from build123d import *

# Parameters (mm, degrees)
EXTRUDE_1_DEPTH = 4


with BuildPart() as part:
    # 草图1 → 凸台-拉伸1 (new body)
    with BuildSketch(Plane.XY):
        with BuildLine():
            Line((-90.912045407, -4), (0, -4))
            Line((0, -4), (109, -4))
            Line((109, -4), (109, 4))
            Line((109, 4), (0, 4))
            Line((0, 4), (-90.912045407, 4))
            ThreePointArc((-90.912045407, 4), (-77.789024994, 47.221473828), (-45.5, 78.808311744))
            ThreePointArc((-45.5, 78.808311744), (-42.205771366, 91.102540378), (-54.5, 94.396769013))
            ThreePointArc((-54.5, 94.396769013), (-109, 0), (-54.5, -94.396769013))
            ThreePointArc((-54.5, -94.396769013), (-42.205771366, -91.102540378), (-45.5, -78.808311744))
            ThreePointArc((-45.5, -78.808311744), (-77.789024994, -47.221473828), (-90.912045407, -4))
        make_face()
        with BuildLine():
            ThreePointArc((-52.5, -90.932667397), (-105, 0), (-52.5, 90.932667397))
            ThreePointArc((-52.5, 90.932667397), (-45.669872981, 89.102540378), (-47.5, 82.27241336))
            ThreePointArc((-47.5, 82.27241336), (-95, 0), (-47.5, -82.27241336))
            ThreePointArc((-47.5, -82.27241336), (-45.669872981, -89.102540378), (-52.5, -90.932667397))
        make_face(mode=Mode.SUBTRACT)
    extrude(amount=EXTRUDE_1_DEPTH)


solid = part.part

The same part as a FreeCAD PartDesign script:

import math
import FreeCAD as App
import Part
import Sketcher

doc = App.newDocument("Part")
body = doc.addObject("PartDesign::Body", "Body")

sketch1 = body.newObject("Sketcher::SketchObject", "Sketch")
sketch1.AttachmentSupport = (doc.getObject("XY_Plane"), [""])
sketch1.MapMode = "FlatFace"
sketch1.addGeometry(Part.LineSegment(App.Vector(-91, -4, 0), App.Vector(109, -4, 0)), False)
sketch1.addGeometry(Part.LineSegment(App.Vector(109, -4, 0), App.Vector(109, 4, 0)), False)
sketch1.addGeometry(Part.LineSegment(App.Vector(109, 4, 0), App.Vector(-91, 4, 0)), False)
sketch1.addGeometry(Part.ArcOfCircle(Part.Circle(App.Vector(0, 0, 0), App.Vector(0, 0, 1), 91), math.radians(120), math.radians(177)), False)
sketch1.addGeometry(Part.ArcOfCircle(Part.Circle(App.Vector(-50, 87, 0), App.Vector(0, 0, 1), 9), math.radians(-60), math.radians(120)), False)
sketch1.addGeometry(Part.ArcOfCircle(Part.Circle(App.Vector(0, 0, 0), App.Vector(0, 0, 1), 109), math.radians(120), math.radians(240)), False)
sketch1.addGeometry(Part.ArcOfCircle(Part.Circle(App.Vector(-50, -87, 0), App.Vector(0, 0, 1), 9), math.radians(-120), math.radians(60)), False)
sketch1.addGeometry(Part.ArcOfCircle(Part.Circle(App.Vector(0, 0, 0), App.Vector(0, 0, 1), 91), math.radians(-177), math.radians(-120)), False)
sketch1.addGeometry(Part.ArcOfCircle(Part.Circle(App.Vector(-50, -87, 0), App.Vector(0, 0, 1), 5), math.radians(-120), math.radians(60)), False)
sketch1.addGeometry(Part.ArcOfCircle(Part.Circle(App.Vector(0, 0, 0), App.Vector(0, 0, 1), 105), math.radians(120), math.radians(240)), False)
sketch1.addGeometry(Part.ArcOfCircle(Part.Circle(App.Vector(-50, 87, 0), App.Vector(0, 0, 1), 5), math.radians(-60), math.radians(120)), False)
sketch1.addGeometry(Part.ArcOfCircle(Part.Circle(App.Vector(0, 0, 0), App.Vector(0, 0, 1), 95), math.radians(120), math.radians(240)), False)
sketch1.addConstraint(Sketcher.Constraint("Coincident", 0, 2, 1, 1))
sketch1.addConstraint(Sketcher.Constraint("Coincident", 1, 2, 2, 1))
sketch1.addConstraint(Sketcher.Constraint("Coincident", 2, 2, 3, 2))
sketch1.addConstraint(Sketcher.Constraint("Tangent", 3, 1, 4, 1))
sketch1.addConstraint(Sketcher.Constraint("Tangent", 4, 2, 5, 1))
sketch1.addConstraint(Sketcher.Constraint("Tangent", 5, 2, 6, 1))
sketch1.addConstraint(Sketcher.Constraint("Tangent", 6, 2, 7, 2))
sketch1.addConstraint(Sketcher.Constraint("Coincident", 7, 1, 0, 1))
sketch1.addConstraint(Sketcher.Constraint("Tangent", 8, 1, 9, 2))
sketch1.addConstraint(Sketcher.Constraint("Tangent", 9, 1, 10, 2))
sketch1.addConstraint(Sketcher.Constraint("Tangent", 10, 1, 11, 1))
sketch1.addConstraint(Sketcher.Constraint("Tangent", 11, 2, 8, 2))
sketch1.addConstraint(Sketcher.Constraint("Horizontal", 0))
sketch1.addConstraint(Sketcher.Constraint("Vertical", 1))
sketch1.addConstraint(Sketcher.Constraint("Horizontal", 2))
sketch1.addConstraint(Sketcher.Constraint("Coincident", 3, 3, -1, 1))
sketch1.addConstraint(Sketcher.Constraint("Coincident", 5, 3, -1, 1))
sketch1.addConstraint(Sketcher.Constraint("Coincident", 7, 3, -1, 1))
sketch1.addConstraint(Sketcher.Constraint("Coincident", 9, 3, -1, 1))
sketch1.addConstraint(Sketcher.Constraint("Coincident", 11, 3, -1, 1))
sketch1.addConstraint(Sketcher.Constraint("Coincident", 8, 3, 6, 3))
sketch1.addConstraint(Sketcher.Constraint("Coincident", 10, 3, 4, 3))
sketch1.addConstraint(Sketcher.Constraint("Vertical", 4, 3, 6, 3))
sketch1.addConstraint(Sketcher.Constraint("Vertical", 2, 2, 7, 1))
sketch1.addConstraint(Sketcher.Constraint("Radius", 3, 91.0))
sketch1.addConstraint(Sketcher.Constraint("Radius", 4, 9.0))
sketch1.addConstraint(Sketcher.Constraint("Radius", 8, 5.0))
sketch1.addConstraint(Sketcher.Constraint("DistanceY", 1, 1, 1, 2, 8.0))
sketch1.addConstraint(Sketcher.Constraint("DistanceX", 4, 3, -1, 1, 50.0))
sketch1.addConstraint(Sketcher.Constraint("DistanceX", -1, 1, 0, 2, 109.0))
pad1 = body.newObject("PartDesign::Pad", "Pad")
pad1.Profile = sketch1
pad1.Length = 4

doc.recompute()
